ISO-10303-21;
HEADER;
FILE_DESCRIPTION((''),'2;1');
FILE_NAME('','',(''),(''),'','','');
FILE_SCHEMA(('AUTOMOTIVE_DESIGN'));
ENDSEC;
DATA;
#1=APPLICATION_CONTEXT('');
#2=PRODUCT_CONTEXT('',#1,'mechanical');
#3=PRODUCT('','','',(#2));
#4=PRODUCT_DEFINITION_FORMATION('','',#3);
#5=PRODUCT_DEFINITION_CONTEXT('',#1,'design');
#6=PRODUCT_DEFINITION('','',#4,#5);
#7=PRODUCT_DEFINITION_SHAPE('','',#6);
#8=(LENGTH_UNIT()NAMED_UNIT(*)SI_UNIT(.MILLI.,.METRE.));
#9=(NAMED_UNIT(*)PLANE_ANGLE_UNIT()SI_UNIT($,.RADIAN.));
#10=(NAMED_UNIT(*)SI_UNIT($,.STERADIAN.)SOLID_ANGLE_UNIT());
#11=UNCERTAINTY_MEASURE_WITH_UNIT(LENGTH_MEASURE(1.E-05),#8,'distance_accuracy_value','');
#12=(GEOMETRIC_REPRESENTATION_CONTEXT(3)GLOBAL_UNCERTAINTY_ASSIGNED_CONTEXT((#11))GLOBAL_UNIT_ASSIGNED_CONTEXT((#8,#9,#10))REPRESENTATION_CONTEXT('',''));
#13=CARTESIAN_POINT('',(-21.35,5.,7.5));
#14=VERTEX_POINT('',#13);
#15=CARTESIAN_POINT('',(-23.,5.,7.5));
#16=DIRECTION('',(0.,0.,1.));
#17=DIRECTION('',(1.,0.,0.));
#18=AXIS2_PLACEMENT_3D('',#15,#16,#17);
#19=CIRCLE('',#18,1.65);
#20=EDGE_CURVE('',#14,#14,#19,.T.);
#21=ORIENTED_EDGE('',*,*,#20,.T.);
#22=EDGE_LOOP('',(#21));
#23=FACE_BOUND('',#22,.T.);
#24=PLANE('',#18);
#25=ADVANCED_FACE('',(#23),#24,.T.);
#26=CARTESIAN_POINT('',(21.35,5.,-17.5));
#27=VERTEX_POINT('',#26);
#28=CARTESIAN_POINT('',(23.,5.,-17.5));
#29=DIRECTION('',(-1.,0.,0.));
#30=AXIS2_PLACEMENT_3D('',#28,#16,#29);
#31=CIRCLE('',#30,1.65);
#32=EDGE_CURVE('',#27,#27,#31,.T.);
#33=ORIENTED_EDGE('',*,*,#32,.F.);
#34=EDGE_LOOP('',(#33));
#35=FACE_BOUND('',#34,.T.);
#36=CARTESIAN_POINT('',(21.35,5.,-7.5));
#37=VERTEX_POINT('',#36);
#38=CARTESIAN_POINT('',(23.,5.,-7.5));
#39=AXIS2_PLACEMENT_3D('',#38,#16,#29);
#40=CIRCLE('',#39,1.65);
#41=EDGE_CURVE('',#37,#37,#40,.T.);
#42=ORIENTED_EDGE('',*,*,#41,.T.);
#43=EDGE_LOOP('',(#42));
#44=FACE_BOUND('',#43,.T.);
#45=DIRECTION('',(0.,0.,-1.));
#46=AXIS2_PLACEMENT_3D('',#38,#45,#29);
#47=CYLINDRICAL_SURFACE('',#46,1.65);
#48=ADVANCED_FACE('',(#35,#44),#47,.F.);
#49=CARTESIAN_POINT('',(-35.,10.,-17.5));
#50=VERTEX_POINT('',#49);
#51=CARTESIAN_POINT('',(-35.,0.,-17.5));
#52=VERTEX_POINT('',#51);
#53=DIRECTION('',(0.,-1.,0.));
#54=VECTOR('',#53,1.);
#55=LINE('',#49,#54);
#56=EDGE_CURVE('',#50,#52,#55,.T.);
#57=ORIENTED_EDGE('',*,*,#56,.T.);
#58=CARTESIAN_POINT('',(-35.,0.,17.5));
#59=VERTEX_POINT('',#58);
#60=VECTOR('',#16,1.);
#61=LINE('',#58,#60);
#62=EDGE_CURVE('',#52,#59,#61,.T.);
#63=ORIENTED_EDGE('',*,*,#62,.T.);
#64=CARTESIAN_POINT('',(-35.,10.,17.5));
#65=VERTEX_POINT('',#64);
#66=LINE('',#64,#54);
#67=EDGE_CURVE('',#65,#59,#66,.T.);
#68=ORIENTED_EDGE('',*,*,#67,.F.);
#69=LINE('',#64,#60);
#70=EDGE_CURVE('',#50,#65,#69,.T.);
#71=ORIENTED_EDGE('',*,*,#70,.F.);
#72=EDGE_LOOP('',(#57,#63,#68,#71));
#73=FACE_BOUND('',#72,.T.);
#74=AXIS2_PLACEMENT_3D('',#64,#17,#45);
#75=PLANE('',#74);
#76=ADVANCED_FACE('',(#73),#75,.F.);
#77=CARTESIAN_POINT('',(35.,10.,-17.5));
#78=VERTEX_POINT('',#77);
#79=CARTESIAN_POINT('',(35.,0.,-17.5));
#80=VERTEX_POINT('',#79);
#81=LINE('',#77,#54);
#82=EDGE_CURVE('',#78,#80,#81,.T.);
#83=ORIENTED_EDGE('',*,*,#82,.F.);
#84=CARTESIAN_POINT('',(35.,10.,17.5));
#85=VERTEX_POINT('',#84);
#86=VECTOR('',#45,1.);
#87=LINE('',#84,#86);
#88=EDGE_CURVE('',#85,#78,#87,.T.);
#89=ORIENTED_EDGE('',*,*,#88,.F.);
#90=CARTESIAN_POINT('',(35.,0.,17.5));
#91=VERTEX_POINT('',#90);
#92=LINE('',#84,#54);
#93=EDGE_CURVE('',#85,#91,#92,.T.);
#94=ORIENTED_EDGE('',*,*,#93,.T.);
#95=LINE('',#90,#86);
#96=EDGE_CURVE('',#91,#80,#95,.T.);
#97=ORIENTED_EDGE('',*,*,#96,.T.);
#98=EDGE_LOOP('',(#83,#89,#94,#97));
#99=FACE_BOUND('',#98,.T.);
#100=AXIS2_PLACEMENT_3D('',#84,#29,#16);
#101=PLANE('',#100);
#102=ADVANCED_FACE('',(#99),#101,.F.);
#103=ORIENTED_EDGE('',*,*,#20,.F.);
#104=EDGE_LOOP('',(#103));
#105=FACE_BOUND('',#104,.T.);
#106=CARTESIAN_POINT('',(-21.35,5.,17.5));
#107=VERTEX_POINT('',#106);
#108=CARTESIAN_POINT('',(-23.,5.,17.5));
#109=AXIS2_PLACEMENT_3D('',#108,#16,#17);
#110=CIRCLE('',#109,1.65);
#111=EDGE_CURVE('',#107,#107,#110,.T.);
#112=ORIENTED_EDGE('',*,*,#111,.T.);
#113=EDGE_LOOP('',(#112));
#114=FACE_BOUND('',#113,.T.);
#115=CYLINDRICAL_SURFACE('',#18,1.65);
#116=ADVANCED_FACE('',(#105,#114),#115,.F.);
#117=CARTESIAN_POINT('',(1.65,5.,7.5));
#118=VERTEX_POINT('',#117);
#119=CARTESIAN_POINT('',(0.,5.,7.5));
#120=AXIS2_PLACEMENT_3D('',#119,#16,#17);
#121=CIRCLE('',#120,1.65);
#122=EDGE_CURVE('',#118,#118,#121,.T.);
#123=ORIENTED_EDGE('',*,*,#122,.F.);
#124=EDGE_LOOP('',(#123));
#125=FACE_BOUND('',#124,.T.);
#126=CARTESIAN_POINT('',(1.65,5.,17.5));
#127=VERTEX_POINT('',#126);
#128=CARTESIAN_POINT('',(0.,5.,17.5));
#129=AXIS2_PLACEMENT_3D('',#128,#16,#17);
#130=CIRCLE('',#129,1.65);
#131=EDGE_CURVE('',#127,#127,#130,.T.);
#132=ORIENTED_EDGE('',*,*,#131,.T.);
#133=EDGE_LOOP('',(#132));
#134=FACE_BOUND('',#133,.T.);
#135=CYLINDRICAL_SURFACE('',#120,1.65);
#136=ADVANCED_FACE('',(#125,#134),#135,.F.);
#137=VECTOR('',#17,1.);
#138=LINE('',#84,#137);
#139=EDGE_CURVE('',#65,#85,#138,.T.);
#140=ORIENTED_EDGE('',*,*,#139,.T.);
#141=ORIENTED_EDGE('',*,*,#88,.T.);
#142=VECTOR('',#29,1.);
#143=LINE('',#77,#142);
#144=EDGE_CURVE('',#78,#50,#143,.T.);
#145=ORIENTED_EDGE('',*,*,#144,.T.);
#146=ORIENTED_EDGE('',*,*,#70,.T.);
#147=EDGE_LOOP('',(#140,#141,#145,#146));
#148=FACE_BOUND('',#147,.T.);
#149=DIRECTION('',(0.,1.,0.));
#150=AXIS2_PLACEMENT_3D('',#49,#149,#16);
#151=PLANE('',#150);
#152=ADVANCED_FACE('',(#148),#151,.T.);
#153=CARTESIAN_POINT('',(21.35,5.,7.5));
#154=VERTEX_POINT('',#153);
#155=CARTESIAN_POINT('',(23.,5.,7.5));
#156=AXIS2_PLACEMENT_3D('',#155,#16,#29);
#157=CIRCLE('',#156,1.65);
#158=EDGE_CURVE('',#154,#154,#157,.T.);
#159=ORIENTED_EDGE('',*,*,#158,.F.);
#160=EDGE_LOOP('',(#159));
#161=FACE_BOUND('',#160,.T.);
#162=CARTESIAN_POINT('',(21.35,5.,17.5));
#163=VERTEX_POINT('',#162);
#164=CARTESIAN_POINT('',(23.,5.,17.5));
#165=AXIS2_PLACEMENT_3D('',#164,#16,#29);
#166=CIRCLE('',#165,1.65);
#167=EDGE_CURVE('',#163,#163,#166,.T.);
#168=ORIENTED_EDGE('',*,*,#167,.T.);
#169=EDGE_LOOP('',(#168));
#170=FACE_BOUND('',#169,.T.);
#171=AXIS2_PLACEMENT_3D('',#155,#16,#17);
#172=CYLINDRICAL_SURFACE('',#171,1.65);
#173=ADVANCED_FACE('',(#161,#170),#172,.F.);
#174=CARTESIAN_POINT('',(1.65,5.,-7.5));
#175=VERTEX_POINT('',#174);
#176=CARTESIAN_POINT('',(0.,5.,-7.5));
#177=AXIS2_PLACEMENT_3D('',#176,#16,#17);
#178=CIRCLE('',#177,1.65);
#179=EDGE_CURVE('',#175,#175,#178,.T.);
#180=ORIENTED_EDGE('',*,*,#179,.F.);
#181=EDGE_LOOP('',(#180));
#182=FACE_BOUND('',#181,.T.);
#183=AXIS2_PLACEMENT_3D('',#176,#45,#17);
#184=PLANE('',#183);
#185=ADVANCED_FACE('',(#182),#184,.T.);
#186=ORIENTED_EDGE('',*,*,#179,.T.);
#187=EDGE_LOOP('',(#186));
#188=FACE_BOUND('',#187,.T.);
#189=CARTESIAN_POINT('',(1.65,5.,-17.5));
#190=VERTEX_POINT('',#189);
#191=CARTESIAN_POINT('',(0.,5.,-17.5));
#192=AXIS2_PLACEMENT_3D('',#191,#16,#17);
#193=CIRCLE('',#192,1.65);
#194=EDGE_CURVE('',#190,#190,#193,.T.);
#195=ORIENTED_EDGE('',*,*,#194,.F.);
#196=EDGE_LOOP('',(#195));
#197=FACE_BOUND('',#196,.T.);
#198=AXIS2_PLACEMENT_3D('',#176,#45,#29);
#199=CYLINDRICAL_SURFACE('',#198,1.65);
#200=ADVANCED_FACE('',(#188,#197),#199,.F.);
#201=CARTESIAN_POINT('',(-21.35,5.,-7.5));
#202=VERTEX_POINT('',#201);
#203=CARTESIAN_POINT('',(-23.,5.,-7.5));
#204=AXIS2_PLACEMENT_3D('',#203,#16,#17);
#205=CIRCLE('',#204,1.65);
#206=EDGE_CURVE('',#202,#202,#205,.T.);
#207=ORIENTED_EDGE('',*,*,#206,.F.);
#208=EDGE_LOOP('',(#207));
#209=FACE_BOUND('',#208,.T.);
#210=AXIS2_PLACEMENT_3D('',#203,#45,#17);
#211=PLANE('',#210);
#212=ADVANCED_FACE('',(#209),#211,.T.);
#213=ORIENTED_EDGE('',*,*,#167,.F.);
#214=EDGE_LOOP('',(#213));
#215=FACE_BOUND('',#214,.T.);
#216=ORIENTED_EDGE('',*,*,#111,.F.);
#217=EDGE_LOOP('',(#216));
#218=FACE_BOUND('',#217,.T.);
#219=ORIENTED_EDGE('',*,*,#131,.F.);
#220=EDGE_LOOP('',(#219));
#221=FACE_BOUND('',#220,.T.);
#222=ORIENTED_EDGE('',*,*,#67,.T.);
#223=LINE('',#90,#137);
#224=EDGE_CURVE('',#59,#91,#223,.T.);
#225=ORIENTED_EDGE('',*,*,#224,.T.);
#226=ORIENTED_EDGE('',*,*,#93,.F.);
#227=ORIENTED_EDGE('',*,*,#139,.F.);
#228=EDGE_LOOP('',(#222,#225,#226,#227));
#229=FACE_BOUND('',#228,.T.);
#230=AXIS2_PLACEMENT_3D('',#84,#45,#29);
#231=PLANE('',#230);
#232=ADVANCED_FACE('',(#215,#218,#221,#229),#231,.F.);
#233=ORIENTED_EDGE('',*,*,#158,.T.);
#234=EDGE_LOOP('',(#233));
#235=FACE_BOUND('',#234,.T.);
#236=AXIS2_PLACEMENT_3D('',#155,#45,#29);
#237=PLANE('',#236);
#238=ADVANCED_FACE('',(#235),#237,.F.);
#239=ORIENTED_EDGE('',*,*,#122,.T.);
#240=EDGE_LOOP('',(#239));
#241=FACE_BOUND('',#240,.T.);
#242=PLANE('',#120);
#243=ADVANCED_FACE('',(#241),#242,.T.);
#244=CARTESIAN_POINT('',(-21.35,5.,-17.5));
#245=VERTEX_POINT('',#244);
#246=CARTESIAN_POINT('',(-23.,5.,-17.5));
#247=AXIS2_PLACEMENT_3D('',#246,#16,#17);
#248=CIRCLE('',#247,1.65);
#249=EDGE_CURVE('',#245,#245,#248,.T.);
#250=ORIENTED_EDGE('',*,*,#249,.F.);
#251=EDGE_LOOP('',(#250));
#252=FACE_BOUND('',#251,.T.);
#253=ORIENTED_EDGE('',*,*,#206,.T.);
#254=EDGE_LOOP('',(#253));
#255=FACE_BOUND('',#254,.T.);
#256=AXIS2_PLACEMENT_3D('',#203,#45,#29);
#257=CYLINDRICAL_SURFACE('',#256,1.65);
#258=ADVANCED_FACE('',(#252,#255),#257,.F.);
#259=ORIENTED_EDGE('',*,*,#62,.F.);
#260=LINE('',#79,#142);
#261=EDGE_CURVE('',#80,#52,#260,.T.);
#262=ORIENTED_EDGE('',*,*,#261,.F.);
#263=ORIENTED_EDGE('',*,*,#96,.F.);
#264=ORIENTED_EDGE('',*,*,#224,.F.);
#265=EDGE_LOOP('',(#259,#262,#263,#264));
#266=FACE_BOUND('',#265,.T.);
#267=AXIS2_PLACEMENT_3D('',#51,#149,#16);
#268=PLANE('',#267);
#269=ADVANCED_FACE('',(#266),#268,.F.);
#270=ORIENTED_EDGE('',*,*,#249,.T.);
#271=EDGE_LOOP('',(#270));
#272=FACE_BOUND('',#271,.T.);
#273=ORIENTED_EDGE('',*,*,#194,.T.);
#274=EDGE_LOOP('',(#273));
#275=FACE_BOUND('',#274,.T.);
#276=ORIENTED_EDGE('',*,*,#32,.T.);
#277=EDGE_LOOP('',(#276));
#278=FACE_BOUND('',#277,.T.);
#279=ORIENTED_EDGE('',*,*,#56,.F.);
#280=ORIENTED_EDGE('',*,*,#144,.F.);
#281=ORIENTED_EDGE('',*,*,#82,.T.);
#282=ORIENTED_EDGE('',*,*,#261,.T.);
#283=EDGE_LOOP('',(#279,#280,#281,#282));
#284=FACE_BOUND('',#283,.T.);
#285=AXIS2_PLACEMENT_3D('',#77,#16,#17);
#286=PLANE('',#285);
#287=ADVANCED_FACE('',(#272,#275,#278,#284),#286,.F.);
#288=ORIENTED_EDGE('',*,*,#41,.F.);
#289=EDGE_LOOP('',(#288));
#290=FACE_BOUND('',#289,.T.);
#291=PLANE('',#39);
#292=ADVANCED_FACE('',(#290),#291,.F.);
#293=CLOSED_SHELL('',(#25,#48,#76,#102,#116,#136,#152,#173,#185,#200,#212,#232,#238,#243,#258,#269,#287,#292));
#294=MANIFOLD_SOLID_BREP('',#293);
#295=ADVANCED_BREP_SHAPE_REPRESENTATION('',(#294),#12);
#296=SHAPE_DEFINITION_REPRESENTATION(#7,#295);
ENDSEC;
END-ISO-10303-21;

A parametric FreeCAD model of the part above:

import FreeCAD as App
import Part
import Sketcher

V = App.Vector
Q = App.Units.Quantity

doc = App.newDocument("Part")
body = doc.addObject("PartDesign::Body", "Body")

sketch1 = body.newObject("Sketcher::SketchObject", "Sketch")
sketch1.AttachmentSupport = (doc.getObject("XZ_Plane"), [""])
sketch1.MapMode = "FlatFace"
sketch1.addGeometry(Part.LineSegment(V(-35, -18, 0), V(-35, 18, 0)), False)
sketch1.addGeometry(Part.LineSegment(V(-35, 18, 0), V(35, 18, 0)), False)
sketch1.addGeometry(Part.LineSegment(V(35, 18, 0), V(35, -18, 0)), False)
sketch1.addGeometry(Part.LineSegment(V(35, -18, 0), V(-35, -18, 0)), False)
sketch1.addConstraint(Sketcher.Constraint("Coincident", 0, 2, 1, 1))
sketch1.addConstraint(Sketcher.Constraint("Coincident", 1, 2, 2, 1))
sketch1.addConstraint(Sketcher.Constraint("Coincident", 2, 2, 3, 1))
sketch1.addConstraint(Sketcher.Constraint("Coincident", 3, 2, 0, 1))
sketch1.addConstraint(Sketcher.Constraint("Vertical", 0))
sketch1.addConstraint(Sketcher.Constraint("Horizontal", 1))
sketch1.addConstraint(Sketcher.Constraint("Vertical", 2))
sketch1.addConstraint(Sketcher.Constraint("Horizontal", 3))
sketch1.addConstraint(Sketcher.Constraint("Symmetric", 0, 2, 2, 2, -1, 1))
sketch1.addConstraint(Sketcher.Constraint("DistanceX", 1, 1, 1, 2, Q("70 mm")))
sketch1.addConstraint(Sketcher.Constraint("DistanceY", 0, 1, 0, 2, Q("35 mm")))
pad1 = body.newObject("PartDesign::Pad", "Pad")
pad1.Profile = sketch1
pad1.Length = 10
pad1.Reversed = True

sketch2 = body.newObject("Sketcher::SketchObject", "Sketch001")
sketch2.AttachmentSupport = (doc.getObject("XY_Plane"), [""])
sketch2.MapMode = "FlatFace"
sketch2.AttachmentOffset = App.Placement(V(0, 0, 17.5), App.Rotation())
sketch2.addGeometry(Part.Circle(V(0, 5, 0), V(0, 0, 1), 1.6), False)
sketch2.addGeometry(Part.Circle(V(-23, 5, 0), V(0, 0, 1), 1.6), False)
sketch2.addGeometry(Part.Circle(V(23, 5, 0), V(0, 0, 1), 1.6), False)
sketch2.addConstraint(Sketcher.Constraint("Equal", 0, 1))
sketch2.addConstraint(Sketcher.Constraint("Equal", 1, 2))
sketch2.addConstraint(Sketcher.Constraint("Symmetric", 1, 3, 2, 3, -2))
sketch2.addConstraint(Sketcher.Constraint("PointOnObject", 0, 3, -2))
sketch2.addConstraint(Sketcher.Constraint("Horizontal", 0, 3, 1, 3))
sketch2.addConstraint(Sketcher.Constraint("Diameter", 0, Q("3.3 mm")))
sketch2.addConstraint(Sketcher.Constraint("DistanceY", -1, 1, 0, 3, Q("5 mm")))
sketch2.addConstraint(Sketcher.Constraint("DistanceX", 1, 3, -1, 1, Q("23 mm")))
pocket1 = body.newObject("PartDesign::Pocket", "Pocket")
pocket1.Profile = sketch2
pocket1.Length = 10
doc.recompute()

mirrored = body.newObject("PartDesign::Mirrored", "Mirrored")
mirrored.Originals = [pocket1]
mirrored.MirrorPlane = (doc.getObject("XY_Plane"), [""])
body.Tip = mirrored

doc.recompute()
